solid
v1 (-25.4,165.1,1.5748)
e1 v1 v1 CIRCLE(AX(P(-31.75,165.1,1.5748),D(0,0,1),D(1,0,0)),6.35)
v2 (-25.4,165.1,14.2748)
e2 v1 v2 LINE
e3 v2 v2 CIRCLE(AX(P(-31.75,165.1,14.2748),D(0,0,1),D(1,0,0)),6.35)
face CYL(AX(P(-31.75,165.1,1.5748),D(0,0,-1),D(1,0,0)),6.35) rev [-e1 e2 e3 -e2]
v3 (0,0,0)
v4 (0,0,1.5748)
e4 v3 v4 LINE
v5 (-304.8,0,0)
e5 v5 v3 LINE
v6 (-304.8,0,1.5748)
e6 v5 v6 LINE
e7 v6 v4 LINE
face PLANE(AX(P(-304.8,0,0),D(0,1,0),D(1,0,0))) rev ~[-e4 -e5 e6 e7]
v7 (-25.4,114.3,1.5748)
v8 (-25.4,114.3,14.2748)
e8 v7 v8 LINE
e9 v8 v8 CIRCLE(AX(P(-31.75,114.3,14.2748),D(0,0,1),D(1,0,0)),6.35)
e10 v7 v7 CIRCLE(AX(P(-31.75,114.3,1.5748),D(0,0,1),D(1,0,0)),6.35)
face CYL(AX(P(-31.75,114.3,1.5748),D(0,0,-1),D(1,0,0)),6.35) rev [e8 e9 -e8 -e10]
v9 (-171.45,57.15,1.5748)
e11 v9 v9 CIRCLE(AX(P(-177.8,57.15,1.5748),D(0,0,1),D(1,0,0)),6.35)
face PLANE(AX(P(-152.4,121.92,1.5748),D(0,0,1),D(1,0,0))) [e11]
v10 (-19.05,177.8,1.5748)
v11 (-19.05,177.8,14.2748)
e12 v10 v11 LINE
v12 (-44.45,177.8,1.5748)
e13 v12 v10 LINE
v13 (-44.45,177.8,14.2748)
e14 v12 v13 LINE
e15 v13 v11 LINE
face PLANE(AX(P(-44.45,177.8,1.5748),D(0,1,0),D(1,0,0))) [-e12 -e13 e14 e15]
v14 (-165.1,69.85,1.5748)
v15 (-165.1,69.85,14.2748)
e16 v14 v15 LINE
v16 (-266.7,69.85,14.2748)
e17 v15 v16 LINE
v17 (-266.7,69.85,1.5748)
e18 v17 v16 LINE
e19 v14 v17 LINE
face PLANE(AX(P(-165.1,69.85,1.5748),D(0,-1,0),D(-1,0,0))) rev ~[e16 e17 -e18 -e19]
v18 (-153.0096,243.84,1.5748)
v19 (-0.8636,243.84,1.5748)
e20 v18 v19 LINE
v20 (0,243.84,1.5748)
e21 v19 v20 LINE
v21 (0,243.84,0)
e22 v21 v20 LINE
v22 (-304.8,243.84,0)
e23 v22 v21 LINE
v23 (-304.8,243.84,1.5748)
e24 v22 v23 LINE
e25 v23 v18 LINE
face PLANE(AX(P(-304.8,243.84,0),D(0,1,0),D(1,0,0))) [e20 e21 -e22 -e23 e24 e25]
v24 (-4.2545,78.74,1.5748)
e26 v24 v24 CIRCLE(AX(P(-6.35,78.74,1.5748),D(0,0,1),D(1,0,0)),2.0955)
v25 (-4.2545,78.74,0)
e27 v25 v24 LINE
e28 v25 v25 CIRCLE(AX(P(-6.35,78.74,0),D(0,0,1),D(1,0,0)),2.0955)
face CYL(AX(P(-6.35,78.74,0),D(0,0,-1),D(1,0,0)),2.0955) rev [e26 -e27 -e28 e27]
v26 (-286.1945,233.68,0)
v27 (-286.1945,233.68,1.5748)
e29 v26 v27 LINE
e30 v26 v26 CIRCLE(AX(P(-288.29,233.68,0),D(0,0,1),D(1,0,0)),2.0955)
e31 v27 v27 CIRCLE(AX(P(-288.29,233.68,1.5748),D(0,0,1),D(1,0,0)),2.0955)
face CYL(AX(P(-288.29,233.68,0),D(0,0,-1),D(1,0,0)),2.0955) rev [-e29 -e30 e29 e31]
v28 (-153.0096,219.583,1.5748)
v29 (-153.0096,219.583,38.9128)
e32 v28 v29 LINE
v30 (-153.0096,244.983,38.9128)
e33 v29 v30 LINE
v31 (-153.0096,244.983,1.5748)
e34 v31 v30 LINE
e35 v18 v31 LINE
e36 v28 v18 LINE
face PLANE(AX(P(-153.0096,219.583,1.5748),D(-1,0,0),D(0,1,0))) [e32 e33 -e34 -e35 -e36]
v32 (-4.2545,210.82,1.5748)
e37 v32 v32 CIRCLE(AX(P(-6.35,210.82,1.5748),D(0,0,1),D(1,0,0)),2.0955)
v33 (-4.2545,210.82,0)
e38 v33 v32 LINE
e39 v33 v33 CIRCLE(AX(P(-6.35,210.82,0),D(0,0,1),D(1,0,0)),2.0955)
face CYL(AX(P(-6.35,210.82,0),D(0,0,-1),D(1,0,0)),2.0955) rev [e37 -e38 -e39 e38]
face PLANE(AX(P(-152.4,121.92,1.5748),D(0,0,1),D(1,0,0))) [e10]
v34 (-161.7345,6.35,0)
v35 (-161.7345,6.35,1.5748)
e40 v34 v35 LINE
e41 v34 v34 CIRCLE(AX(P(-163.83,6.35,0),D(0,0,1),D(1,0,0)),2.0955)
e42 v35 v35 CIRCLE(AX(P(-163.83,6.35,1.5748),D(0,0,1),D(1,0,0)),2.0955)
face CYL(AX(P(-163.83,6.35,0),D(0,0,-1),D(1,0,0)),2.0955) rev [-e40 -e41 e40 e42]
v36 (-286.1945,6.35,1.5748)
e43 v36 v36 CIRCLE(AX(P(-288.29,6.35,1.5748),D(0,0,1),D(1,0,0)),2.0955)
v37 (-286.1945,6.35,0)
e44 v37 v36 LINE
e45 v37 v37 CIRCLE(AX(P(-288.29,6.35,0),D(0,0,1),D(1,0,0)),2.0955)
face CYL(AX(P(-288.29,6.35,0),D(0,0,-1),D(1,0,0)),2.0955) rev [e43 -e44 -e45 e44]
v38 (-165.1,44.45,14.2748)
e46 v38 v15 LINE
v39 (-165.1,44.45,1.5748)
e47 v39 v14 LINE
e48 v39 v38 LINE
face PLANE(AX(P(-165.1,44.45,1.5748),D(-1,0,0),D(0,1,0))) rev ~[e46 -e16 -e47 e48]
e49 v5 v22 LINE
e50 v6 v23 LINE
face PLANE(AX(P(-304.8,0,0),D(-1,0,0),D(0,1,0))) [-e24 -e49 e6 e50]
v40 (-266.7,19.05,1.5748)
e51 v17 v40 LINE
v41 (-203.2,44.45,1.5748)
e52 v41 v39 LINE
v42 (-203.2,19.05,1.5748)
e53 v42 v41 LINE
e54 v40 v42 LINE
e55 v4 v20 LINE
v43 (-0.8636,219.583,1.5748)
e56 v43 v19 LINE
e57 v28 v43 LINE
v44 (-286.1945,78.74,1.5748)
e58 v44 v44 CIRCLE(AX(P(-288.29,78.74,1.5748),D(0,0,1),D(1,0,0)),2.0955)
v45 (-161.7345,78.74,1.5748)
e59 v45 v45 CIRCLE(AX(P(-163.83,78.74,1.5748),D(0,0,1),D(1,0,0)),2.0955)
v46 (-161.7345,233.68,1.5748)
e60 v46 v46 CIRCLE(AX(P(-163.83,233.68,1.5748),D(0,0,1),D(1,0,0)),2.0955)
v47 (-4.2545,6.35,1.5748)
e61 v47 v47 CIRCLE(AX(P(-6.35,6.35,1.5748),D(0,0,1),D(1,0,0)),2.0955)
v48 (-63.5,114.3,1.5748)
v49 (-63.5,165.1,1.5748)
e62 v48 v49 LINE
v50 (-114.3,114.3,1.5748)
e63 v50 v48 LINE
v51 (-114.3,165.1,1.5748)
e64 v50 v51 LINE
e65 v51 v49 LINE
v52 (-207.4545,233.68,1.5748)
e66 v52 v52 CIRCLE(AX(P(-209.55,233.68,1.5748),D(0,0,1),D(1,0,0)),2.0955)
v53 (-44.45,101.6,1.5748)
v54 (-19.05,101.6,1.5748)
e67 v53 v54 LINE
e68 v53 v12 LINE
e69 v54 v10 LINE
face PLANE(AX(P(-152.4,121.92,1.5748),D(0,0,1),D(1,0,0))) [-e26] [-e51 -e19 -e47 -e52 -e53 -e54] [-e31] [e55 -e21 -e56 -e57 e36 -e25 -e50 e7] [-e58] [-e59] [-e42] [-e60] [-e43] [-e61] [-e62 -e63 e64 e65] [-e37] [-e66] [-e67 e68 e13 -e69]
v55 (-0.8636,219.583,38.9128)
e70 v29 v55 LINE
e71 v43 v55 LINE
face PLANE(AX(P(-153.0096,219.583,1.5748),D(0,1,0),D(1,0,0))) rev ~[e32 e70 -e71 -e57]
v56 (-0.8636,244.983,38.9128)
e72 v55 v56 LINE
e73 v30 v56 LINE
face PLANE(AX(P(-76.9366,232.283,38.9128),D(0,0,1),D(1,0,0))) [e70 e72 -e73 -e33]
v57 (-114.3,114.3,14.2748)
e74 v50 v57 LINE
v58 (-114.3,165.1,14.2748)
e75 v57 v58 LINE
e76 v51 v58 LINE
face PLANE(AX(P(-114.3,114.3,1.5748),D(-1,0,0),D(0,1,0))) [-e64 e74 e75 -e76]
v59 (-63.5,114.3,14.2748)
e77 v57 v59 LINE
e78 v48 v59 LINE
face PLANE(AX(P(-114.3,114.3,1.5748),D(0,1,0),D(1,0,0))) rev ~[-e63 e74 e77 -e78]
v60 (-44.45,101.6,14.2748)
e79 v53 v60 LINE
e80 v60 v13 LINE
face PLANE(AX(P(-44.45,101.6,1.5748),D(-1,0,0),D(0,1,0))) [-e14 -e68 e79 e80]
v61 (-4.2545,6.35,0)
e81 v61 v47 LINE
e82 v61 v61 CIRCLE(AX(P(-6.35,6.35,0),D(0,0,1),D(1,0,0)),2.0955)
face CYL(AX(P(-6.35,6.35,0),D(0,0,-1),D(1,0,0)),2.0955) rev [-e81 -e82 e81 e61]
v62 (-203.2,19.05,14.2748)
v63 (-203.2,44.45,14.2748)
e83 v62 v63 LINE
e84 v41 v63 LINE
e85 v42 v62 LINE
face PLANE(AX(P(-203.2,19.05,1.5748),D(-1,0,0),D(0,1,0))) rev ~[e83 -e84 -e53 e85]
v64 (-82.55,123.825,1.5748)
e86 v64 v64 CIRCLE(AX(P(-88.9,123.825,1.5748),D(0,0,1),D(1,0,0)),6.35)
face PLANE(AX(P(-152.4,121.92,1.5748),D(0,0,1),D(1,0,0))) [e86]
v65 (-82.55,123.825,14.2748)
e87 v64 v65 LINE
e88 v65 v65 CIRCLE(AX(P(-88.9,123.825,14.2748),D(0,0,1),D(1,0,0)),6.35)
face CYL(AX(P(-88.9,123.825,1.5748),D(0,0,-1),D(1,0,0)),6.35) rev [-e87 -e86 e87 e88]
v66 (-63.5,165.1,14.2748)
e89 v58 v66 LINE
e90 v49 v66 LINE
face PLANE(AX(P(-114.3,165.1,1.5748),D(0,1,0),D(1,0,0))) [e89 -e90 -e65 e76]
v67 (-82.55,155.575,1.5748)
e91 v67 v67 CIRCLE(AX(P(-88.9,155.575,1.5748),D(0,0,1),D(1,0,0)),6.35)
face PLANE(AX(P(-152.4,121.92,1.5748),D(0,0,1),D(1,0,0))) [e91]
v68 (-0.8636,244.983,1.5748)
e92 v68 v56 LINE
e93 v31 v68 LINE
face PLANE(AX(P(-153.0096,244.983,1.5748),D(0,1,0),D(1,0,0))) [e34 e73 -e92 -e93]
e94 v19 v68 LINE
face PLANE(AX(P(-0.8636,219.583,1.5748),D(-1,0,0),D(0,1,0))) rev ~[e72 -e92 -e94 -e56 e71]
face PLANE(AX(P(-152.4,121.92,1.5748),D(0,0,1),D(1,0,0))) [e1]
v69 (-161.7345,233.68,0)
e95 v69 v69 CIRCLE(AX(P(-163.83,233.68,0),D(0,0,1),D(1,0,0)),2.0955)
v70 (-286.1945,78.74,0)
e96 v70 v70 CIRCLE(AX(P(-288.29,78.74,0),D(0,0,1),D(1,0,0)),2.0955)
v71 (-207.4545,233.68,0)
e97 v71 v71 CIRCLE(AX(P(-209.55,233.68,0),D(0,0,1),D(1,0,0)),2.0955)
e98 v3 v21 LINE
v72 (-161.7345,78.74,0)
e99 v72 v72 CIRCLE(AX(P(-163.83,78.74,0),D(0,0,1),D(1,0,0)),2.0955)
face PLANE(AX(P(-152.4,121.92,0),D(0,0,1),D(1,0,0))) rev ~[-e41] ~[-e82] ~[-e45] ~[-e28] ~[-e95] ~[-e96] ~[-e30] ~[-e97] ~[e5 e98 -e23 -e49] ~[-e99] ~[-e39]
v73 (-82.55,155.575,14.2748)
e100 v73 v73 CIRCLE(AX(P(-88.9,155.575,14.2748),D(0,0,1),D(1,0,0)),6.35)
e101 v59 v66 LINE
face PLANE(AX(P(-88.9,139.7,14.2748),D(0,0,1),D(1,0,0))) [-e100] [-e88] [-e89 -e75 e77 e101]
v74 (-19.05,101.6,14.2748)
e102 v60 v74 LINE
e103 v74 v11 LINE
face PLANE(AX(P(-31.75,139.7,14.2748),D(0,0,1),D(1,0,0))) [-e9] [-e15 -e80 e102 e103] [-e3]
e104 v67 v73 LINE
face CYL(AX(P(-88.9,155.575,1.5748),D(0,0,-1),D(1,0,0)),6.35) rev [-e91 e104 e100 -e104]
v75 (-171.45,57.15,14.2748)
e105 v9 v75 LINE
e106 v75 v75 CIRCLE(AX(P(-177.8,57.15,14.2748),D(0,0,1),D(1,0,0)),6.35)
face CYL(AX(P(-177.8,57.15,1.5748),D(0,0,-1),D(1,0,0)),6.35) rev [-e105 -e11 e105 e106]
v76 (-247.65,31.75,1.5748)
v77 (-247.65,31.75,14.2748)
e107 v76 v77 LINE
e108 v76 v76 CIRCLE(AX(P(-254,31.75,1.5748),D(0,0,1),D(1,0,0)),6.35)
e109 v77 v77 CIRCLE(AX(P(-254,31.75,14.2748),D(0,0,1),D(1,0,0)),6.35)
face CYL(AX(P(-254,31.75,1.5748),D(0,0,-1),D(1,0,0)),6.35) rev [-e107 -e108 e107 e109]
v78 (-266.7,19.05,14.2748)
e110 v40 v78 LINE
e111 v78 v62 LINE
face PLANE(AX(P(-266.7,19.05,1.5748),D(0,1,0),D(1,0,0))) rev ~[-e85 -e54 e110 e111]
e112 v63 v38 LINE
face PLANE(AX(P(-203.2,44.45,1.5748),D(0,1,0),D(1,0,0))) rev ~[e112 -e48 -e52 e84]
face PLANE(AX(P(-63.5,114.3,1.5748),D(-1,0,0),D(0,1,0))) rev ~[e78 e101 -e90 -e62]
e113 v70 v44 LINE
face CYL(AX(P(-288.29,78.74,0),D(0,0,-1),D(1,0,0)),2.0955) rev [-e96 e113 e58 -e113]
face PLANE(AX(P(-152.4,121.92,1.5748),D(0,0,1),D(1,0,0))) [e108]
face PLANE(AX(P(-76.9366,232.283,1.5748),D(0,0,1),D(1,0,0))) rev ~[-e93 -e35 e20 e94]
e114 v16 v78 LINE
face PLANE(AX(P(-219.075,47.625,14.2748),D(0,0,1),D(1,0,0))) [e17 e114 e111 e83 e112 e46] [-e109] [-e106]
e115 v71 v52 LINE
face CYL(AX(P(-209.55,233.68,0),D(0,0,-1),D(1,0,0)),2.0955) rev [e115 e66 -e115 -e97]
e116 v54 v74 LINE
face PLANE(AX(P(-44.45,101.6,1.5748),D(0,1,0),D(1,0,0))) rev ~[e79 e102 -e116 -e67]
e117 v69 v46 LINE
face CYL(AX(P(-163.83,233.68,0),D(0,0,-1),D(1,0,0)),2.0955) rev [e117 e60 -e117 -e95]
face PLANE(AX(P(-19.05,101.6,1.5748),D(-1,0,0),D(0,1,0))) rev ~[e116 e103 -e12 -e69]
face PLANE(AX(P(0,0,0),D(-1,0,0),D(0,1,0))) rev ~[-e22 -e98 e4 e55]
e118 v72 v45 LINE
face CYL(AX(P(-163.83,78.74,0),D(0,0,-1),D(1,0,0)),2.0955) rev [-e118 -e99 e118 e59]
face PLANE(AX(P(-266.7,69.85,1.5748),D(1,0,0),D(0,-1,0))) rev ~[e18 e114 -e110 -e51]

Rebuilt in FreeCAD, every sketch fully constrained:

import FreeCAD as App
import Part
import Sketcher
from FreeCAD import Vector
Q = App.Units.Quantity

doc = App.newDocument("Part")
body = doc.addObject("PartDesign::Body", "Body")

# Sketch on XY plane
sketch1 = body.newObject("Sketcher::SketchObject", "Sketch")
sketch1.AttachmentSupport = (doc.getObject("XY_Plane"), [""])
sketch1.MapMode = "FlatFace"
sketch1.addGeometry([
    Part.LineSegment(Vector(-304.8, 243.8, 0), Vector(-304.8, 0, 0)),  # 0
    Part.LineSegment(Vector(-304.8, 0, 0), Vector(0, 0, 0)),  # 1
    Part.LineSegment(Vector(0, 0, 0), Vector(0, 243.8, 0)),  # 2
    Part.LineSegment(Vector(0, 243.8, 0), Vector(-304.8, 243.8, 0)),  # 3
    Part.Circle(Vector(-288.3, 6.3, 0), Vector(0, 0, 1), 2.1),  # 4
    Part.Circle(Vector(-163.8, 6.3, 0), Vector(0, 0, 1), 2.1),  # 5
    Part.Circle(Vector(-288.3, 78.7, 0), Vector(0, 0, 1), 2.1),  # 6
    Part.Circle(Vector(-163.8, 78.7, 0), Vector(0, 0, 1), 2.1),  # 7
    Part.Circle(Vector(-6.3, 6.3, 0), Vector(0, 0, 1), 2.1),  # 8
    Part.Circle(Vector(-6.3, 78.7, 0), Vector(0, 0, 1), 2.1),  # 9
    Part.Circle(Vector(-288.3, 233.7, 0), Vector(0, 0, 1), 2.1),  # 10
    Part.Circle(Vector(-209.6, 233.7, 0), Vector(0, 0, 1), 2.1),  # 11
    Part.Circle(Vector(-163.8, 233.7, 0), Vector(0, 0, 1), 2.1),  # 12
    Part.Circle(Vector(-6.3, 210.8, 0), Vector(0, 0, 1), 2.1),  # 13
], False)
sketch1.addConstraint([
    Sketcher.Constraint("Coincident", 0, 2, 1, 1),
    Sketcher.Constraint("Coincident", 1, 2, 2, 1),
    Sketcher.Constraint("Coincident", 2, 2, 3, 1),
    Sketcher.Constraint("Coincident", 3, 2, 0, 1),
    Sketcher.Constraint("Vertical", 0),
    Sketcher.Constraint("Horizontal", 1),
    Sketcher.Constraint("Vertical", 2),
    Sketcher.Constraint("Horizontal", 3),
    Sketcher.Constraint("Coincident", 1, 2, -1, 1),
    Sketcher.Constraint("Equal", 4, 5),
    Sketcher.Constraint("Equal", 5, 6),
    Sketcher.Constraint("Equal", 6, 7),
    Sketcher.Constraint("Equal", 7, 8),
    Sketcher.Constraint("Equal", 8, 9),
    Sketcher.Constraint("Equal", 9, 10),
    Sketcher.Constraint("Equal", 10, 11),
    Sketcher.Constraint("Equal", 11, 12),
    Sketcher.Constraint("Equal", 12, 13),
    Sketcher.Constraint("Horizontal", 4, 3, 5, 3),
    Sketcher.Constraint("Horizontal", 6, 3, 7, 3),
    Sketcher.Constraint("Horizontal", 5, 3, 8, 3),
    Sketcher.Constraint("Horizontal", 7, 3, 9, 3),
    Sketcher.Constraint("Horizontal", 10, 3, 11, 3),
    Sketcher.Constraint("Horizontal", 11, 3, 12, 3),
    Sketcher.Constraint("Vertical", 4, 3, 6, 3),
    Sketcher.Constraint("Vertical", 5, 3, 7, 3),
    Sketcher.Constraint("Vertical", 8, 3, 9, 3),
    Sketcher.Constraint("Vertical", 6, 3, 10, 3),
    Sketcher.Constraint("Vertical", 7, 3, 12, 3),
    Sketcher.Constraint("Vertical", 9, 3, 13, 3),
    Sketcher.Constraint("DistanceX", 1, 1, 1, 2, Q("12 in")),
    Sketcher.Constraint("Diameter", 4, Q("0.165 in")),
    Sketcher.Constraint("DistanceY", 0, 2, 0, 1, Q("9.6 in")),
    Sketcher.Constraint("DistanceX", 11, 3, 13, 3, Q("8 in")),
    Sketcher.Constraint("DistanceY", -1, 1, 6, 3, Q("3.1 in")),
    Sketcher.Constraint("DistanceY", -1, 1, 10, 3, Q("9.2 in")),
    Sketcher.Constraint("DistanceY", -1, 1, 13, 3, Q("8.3 in")),
    Sketcher.Constraint("DistanceX", 4, 3, 5, 3, Q("4.9 in")),
    Sketcher.Constraint("DistanceX", 5, 3, 8, 3, Q("6.2 in")),
    Sketcher.Constraint("DistanceX", 4, 3, -1, 1, Q("11.35 in")),
    Sketcher.Constraint("DistanceY", -1, 1, 4, 3, Q("0.25 in")),
])
pad1 = body.newObject("PartDesign::Pad", "Pad")
pad1.Profile = sketch1
pad1.Length = Q("0.062 in")

# Sketch on XY plane
sketch2 = body.newObject("Sketcher::SketchObject", "Sketch001")
sketch2.AttachmentSupport = (doc.getObject("XY_Plane"), [""])
sketch2.MapMode = "FlatFace"
sketch2.AttachmentOffset = App.Placement(Vector(0, 0, 0.062 * 25.4), App.Rotation())
sketch2.addGeometry([
    Part.LineSegment(Vector(-153, 245, 0), Vector(-153, 220, 0)),
    Part.LineSegment(Vector(-153, 220, 0), Vector(-1, 220, 0)),
    Part.LineSegment(Vector(-1, 220, 0), Vector(-1, 245, 0)),
    Part.LineSegment(Vector(-1, 245, 0), Vector(-153, 245, 0)),
], False)
sketch2.addConstraint([
    Sketcher.Constraint("Coincident", 0, 2, 1, 1),
    Sketcher.Constraint("Coincident", 1, 2, 2, 1),
    Sketcher.Constraint("Coincident", 2, 2, 3, 1),
    Sketcher.Constraint("Coincident", 3, 2, 0, 1),
    Sketcher.Constraint("Vertical", 0),
    Sketcher.Constraint("Horizontal", 1),
    Sketcher.Constraint("Vertical", 2),
    Sketcher.Constraint("Horizontal", 3),
    Sketcher.Constraint("DistanceY", 0, 2, 0, 1, Q("1 in")),
    Sketcher.Constraint("DistanceX", 1, 1, 1, 2, Q("5.99 in")),
    Sketcher.Constraint("DistanceX", 0, 2, -1, 1, Q("6.024 in")),
    Sketcher.Constraint("DistanceY", -1, 1, 0, 2, Q("8.645 in")),
])
pad2 = body.newObject("PartDesign::Pad", "Pad001")
pad2.Profile = sketch2
pad2.Length = Q("1.47 in")

# Sketch on XY plane
sketch3 = body.newObject("Sketcher::SketchObject", "Sketch002")
sketch3.AttachmentSupport = (doc.getObject("XY_Plane"), [""])
sketch3.MapMode = "FlatFace"
sketch3.AttachmentOffset = App.Placement(Vector(0, 0, 0.062 * 25.4), App.Rotation())
sketch3.addGeometry([
    Part.LineSegment(Vector(-114, 165, 0), Vector(-114, 114, 0)),  # 0
    Part.LineSegment(Vector(-114, 114, 0), Vector(-64, 114, 0)),  # 1
    Part.LineSegment(Vector(-64, 114, 0), Vector(-64, 165, 0)),  # 2
    Part.LineSegment(Vector(-64, 165, 0), Vector(-114, 165, 0)),  # 3
    Part.Circle(Vector(-89, 124, 0), Vector(0, 0, 1), 6),  # 4
    Part.Circle(Vector(-89, 156, 0), Vector(0, 0, 1), 6),  # 5
], False)
sketch3.addConstraint([
    Sketcher.Constraint("Coincident", 0, 2, 1, 1),
    Sketcher.Constraint("Coincident", 1, 2, 2, 1),
    Sketcher.Constraint("Coincident", 2, 2, 3, 1),
    Sketcher.Constraint("Coincident", 3, 2, 0, 1),
    Sketcher.Constraint("Vertical", 0),
    Sketcher.Constraint("Horizontal", 1),
    Sketcher.Constraint("Vertical", 2),
    Sketcher.Constraint("Horizontal", 3),
    Sketcher.Constraint("Equal", 4, 5),
    Sketcher.Constraint("Vertical", 4, 3, 5, 3),
    Sketcher.Constraint("Equal", 3, 0),
    Sketcher.Constraint("Diameter", 4, Q("0.5 in")),
    Sketcher.Constraint("DistanceX", 1, 1, 1, 2, Q("2 in")),
    Sketcher.Constraint("DistanceX", 0, 2, 4, 3, Q("1 in")),
    Sketcher.Constraint("DistanceX", 4, 3, -1, 1, Q("3.5 in")),
    Sketcher.Constraint("DistanceY", -1, 1, 0, 2, Q("4.5 in")),
    Sketcher.Constraint("DistanceY", 4, 3, 5, 3, Q("1.25 in")),
    Sketcher.Constraint("DistanceY", -1, 1, 4, 3, Q("4.875 in")),
])
pad3 = body.newObject("PartDesign::Pad", "Pad002")
pad3.Profile = sketch3
pad3.Length = Q("0.5 in")

# Sketch on XY plane
sketch4 = body.newObject("Sketcher::SketchObject", "Sketch003")
sketch4.AttachmentSupport = (doc.getObject("XY_Plane"), [""])
sketch4.MapMode = "FlatFace"
sketch4.AttachmentOffset = App.Placement(Vector(0, 0, 0.062 * 25.4), App.Rotation())
sketch4.addGeometry([
    Part.LineSegment(Vector(-44, 178, 0), Vector(-44, 102, 0)),  # 0
    Part.LineSegment(Vector(-44, 102, 0), Vector(-19, 102, 0)),  # 1
    Part.LineSegment(Vector(-19, 102, 0), Vector(-19, 178, 0)),  # 2
    Part.LineSegment(Vector(-19, 178, 0), Vector(-44, 178, 0)),  # 3
    Part.Circle(Vector(-32, 114, 0), Vector(0, 0, 1), 6),  # 4
    Part.Circle(Vector(-32, 165, 0), Vector(0, 0, 1), 6),  # 5
], False)
sketch4.addConstraint([
    Sketcher.Constraint("Coincident", 0, 2, 1, 1),
    Sketcher.Constraint("Coincident", 1, 2, 2, 1),
    Sketcher.Constraint("Coincident", 2, 2, 3, 1),
    Sketcher.Constraint("Coincident", 3, 2, 0, 1),
    Sketcher.Constraint("Vertical", 0),
    Sketcher.Constraint("Horizontal", 1),
    Sketcher.Constraint("Vertical", 2),
    Sketcher.Constraint("Horizontal", 3),
    Sketcher.Constraint("Equal", 4, 5),
    Sketcher.Constraint("Vertical", 4, 3, 5, 3),
    Sketcher.Constraint("Diameter", 4, Q("0.5 in")),
    Sketcher.Constraint("DistanceX", 1, 1, 1, 2, Q("1 in")),
    Sketcher.Constraint("DistanceY", 0, 2, 0, 1, Q("3 in")),
    Sketcher.Constraint("DistanceY", -1, 1, 0, 2, Q("4 in")),
    Sketcher.Constraint("DistanceY", 4, 3, 5, 3, Q("2 in")),
    Sketcher.Constraint("DistanceY", -1, 1, 4, 3, Q("4.5 in")),
    Sketcher.Constraint("DistanceX", 0, 2, 4, 3, Q("0.5 in")),
    Sketcher.Constraint("DistanceX", 4, 3, -1, 1, Q("1.25 in")),
])
pad4 = body.newObject("PartDesign::Pad", "Pad003")
pad4.Profile = sketch4
pad4.Length = Q("0.5 in")

# Sketch on XY plane
sketch5 = body.newObject("Sketcher::SketchObject", "Sketch004")
sketch5.AttachmentSupport = (doc.getObject("XY_Plane"), [""])
sketch5.MapMode = "FlatFace"
sketch5.AttachmentOffset = App.Placement(Vector(0, 0, 0.062 * 25.4), App.Rotation())
sketch5.addGeometry([
    Part.LineSegment(Vector(-165, 70, 0), Vector(-267, 70, 0)),  # 0
    Part.LineSegment(Vector(-267, 70, 0), Vector(-267, 19, 0)),  # 1
    Part.LineSegment(Vector(-267, 19, 0), Vector(-203, 19, 0)),  # 2
    Part.LineSegment(Vector(-203, 19, 0), Vector(-203, 44, 0)),  # 3
    Part.LineSegment(Vector(-203, 44, 0), Vector(-165, 44, 0)),  # 4
    Part.LineSegment(Vector(-165, 44, 0), Vector(-165, 70, 0)),  # 5
    Part.Circle(Vector(-254, 32, 0), Vector(0, 0, 1), 6),  # 6
    Part.Circle(Vector(-178, 57, 0), Vector(0, 0, 1), 6),  # 7
], False)
sketch5.addConstraint([
    Sketcher.Constraint("Coincident", 0, 2, 1, 1),
    Sketcher.Constraint("Coincident", 1, 2, 2, 1),
    Sketcher.Constraint("Coincident", 2, 2, 3, 1),
    Sketcher.Constraint("Coincident", 3, 2, 4, 1),
    Sketcher.Constraint("Coincident", 4, 2, 5, 1),
    Sketcher.Constraint("Coincident", 5, 2, 0, 1),
    Sketcher.Constraint("Horizontal", 0),
    Sketcher.Constraint("Vertical", 1),
    Sketcher.Constraint("Horizontal", 2),
    Sketcher.Constraint("Vertical", 3),
    Sketcher.Constraint("Horizontal", 4),
    Sketcher.Constraint("Vertical", 5),
    Sketcher.Constraint("Equal", 6, 7),
    Sketcher.Constraint("Equal", 3, 5),
    Sketcher.Constraint("Diameter", 6, Q("0.5 in")),
    Sketcher.Constraint("DistanceX", 0, 2, 0, 1, Q("4 in")),
    Sketcher.Constraint("DistanceY", 1, 2, 1, 1, Q("2 in")),
    Sketcher.Constraint("DistanceX", 2, 1, 2, 2, Q("2.5 in")),
    Sketcher.Constraint("DistanceX", 6, 3, -1, 1, Q("10 in")),
    Sketcher.Constraint("DistanceX", 7, 3, -1, 1, Q("7 in")),
    Sketcher.Constraint("DistanceX", 2, 2, -1, 1, Q("8 in")),
    Sketcher.Constraint("DistanceY", 6, 3, 7, 3, Q("1 in")),
    Sketcher.Constraint("DistanceY", 6, 3, 0, 2, Q("1.5 in")),
    Sketcher.Constraint("DistanceY", -1, 1, 6, 3, Q("1.25 in")),
])
pad5 = body.newObject("PartDesign::Pad", "Pad004")
pad5.Profile = sketch5
pad5.Length = Q("0.5 in")

doc.recompute()
